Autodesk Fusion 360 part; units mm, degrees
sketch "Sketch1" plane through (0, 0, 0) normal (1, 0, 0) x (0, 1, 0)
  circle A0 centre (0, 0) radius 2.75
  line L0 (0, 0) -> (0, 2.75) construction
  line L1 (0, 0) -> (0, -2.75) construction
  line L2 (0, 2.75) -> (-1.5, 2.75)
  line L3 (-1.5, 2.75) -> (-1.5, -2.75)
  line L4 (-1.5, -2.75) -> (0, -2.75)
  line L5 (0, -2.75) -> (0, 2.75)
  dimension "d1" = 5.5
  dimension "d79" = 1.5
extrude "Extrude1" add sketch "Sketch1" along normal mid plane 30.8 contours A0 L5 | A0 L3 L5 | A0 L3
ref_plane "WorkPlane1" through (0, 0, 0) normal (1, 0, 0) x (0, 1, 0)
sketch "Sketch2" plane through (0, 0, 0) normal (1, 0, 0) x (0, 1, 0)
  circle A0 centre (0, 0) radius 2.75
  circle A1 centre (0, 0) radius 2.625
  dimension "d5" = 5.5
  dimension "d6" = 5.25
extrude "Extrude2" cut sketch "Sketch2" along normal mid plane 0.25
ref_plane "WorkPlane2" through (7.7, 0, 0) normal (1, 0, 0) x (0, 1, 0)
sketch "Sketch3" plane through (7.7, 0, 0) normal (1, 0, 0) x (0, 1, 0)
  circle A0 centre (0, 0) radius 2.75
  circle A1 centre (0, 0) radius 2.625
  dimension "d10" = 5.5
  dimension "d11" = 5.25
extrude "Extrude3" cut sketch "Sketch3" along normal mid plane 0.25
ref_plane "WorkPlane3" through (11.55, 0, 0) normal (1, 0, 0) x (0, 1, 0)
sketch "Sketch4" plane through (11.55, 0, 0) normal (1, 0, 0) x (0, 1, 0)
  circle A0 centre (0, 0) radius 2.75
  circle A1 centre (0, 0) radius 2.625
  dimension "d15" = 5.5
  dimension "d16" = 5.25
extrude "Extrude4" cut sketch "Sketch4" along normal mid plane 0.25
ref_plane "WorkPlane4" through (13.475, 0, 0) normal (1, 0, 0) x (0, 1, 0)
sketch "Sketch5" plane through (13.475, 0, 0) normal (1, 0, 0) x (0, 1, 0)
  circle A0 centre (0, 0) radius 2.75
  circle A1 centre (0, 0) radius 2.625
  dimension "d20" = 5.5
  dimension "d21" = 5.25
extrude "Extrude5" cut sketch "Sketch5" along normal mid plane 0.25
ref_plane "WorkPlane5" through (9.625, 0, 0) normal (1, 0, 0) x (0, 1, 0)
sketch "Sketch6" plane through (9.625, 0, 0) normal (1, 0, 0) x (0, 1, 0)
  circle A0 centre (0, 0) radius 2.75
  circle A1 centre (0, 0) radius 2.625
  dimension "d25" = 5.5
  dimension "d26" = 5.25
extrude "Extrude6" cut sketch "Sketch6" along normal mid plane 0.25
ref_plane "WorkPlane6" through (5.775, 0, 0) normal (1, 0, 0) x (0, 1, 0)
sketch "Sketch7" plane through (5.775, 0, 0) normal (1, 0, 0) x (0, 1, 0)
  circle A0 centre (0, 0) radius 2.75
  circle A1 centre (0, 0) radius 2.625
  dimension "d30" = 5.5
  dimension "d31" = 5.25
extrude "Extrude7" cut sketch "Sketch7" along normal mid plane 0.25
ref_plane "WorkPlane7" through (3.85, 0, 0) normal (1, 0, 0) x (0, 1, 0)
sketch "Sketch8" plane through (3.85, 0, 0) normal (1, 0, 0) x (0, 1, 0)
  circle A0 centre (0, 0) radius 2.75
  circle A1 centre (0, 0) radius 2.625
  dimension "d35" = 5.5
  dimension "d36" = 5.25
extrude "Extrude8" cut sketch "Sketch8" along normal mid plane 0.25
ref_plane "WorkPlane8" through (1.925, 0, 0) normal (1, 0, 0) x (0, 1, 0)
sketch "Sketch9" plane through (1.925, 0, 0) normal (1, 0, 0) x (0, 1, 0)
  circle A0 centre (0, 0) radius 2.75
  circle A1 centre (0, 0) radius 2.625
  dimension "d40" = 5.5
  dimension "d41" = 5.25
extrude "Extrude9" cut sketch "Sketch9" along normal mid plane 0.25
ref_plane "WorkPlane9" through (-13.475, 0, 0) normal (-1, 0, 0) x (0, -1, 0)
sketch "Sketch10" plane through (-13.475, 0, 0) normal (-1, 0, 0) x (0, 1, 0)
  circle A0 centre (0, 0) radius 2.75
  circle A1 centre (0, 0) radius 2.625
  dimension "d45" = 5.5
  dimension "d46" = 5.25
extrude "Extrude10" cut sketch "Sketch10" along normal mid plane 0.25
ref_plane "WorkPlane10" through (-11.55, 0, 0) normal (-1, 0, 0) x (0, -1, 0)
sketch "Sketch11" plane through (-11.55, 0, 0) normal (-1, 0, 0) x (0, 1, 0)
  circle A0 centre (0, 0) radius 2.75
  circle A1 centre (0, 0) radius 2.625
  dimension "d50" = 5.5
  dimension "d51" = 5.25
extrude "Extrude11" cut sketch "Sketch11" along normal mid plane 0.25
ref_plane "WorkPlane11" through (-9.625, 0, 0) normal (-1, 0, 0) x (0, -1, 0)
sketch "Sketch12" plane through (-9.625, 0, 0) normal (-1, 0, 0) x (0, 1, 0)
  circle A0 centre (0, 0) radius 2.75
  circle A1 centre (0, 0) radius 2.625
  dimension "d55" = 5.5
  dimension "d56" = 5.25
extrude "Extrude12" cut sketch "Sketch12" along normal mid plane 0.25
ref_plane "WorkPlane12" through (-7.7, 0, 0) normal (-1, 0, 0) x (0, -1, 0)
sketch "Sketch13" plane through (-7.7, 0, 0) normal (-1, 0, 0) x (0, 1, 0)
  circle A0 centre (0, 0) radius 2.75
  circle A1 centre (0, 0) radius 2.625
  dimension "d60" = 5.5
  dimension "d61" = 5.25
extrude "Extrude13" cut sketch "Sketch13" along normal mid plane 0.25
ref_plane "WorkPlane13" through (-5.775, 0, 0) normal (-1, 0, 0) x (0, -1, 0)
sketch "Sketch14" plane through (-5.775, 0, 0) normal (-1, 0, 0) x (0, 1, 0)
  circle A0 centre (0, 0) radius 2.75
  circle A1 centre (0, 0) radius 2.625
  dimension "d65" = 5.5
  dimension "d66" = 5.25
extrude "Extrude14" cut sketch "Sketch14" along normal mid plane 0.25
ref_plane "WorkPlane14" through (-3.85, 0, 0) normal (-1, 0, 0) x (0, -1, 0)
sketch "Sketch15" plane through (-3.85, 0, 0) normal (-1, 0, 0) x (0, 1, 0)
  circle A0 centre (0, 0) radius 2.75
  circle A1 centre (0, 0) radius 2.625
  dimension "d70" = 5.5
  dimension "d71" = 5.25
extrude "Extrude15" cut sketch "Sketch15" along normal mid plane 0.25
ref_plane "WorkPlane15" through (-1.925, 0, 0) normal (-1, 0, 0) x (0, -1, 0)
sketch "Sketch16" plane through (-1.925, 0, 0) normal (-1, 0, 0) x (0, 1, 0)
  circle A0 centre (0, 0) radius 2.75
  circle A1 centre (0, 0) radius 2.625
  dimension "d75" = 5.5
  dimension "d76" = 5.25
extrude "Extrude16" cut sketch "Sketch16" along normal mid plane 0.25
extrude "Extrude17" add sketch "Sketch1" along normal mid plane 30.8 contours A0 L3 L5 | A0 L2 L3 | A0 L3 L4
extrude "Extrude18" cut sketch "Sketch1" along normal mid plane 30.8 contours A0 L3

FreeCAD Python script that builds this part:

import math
import FreeCAD as App
import Part
import Sketcher
from FreeCAD import Vector
Q = App.Units.Quantity

doc = App.newDocument("Part")
body = doc.addObject("PartDesign::Body", "Body")

# Sketch on YZ plane
sketch1 = body.newObject("Sketcher::SketchObject", "Sketch")
sketch1.AttachmentSupport = (doc.getObject("YZ_Plane"), [""])
sketch1.MapMode = "FlatFace"
sketch1.addGeometry(Part.Circle(Vector(0, 0, 0), Vector(0, 0, 1), 2.8), False)
sketch1.addConstraint(Sketcher.Constraint("Coincident", 0, 3, -1, 1))
sketch1.addConstraint(Sketcher.Constraint("Diameter", 0, Q("5.5 mm")))
pad1 = body.newObject("PartDesign::Pad", "Pad")
pad1.Profile = sketch1
pad1.Length = 30.8
pad1.Midplane = True

# Sketch on YZ plane
sketch2 = body.newObject("Sketcher::SketchObject", "Sketch001")
sketch2.AttachmentSupport = (doc.getObject("YZ_Plane"), [""])
sketch2.MapMode = "FlatFace"
sketch2.addGeometry(Part.Circle(Vector(0, 0, 0), Vector(0, 0, 1), 2.8), False)
sketch2.addGeometry(Part.Circle(Vector(0, 0, 0), Vector(0, 0, 1), 2.6), False)
sketch2.addConstraint(Sketcher.Constraint("Coincident", 0, 3, -1, 1))
sketch2.addConstraint(Sketcher.Constraint("Coincident", 1, 3, -1, 1))
sketch2.addConstraint(Sketcher.Constraint("Diameter", 0, Q("5.5 mm")))
sketch2.addConstraint(Sketcher.Constraint("Diameter", 1, Q("5.25 mm")))
pocket1 = body.newObject("PartDesign::Pocket", "Pocket")
pocket1.Profile = sketch2
pocket1.Length = 0.25
pocket1.Midplane = True

# Sketch on YZ plane
sketch3 = body.newObject("Sketcher::SketchObject", "Sketch002")
sketch3.AttachmentSupport = (doc.getObject("YZ_Plane"), [""])
sketch3.MapMode = "FlatFace"
sketch3.AttachmentOffset = App.Placement(Vector(0, 0, 7.7), App.Rotation())
sketch3.addGeometry(Part.Circle(Vector(0, 0, 0), Vector(0, 0, 1), 2.8), False)
sketch3.addGeometry(Part.Circle(Vector(0, 0, 0), Vector(0, 0, 1), 2.6), False)
sketch3.addConstraint(Sketcher.Constraint("Coincident", 0, 3, -1, 1))
sketch3.addConstraint(Sketcher.Constraint("Coincident", 1, 3, -1, 1))
sketch3.addConstraint(Sketcher.Constraint("Diameter", 0, Q("5.5 mm")))
sketch3.addConstraint(Sketcher.Constraint("Diameter", 1, Q("5.25 mm")))
pocket2 = body.newObject("PartDesign::Pocket", "Pocket001")
pocket2.Profile = sketch3
pocket2.Length = 0.25
pocket2.Midplane = True

# Sketch on YZ plane
sketch4 = body.newObject("Sketcher::SketchObject", "Sketch003")
sketch4.AttachmentSupport = (doc.getObject("YZ_Plane"), [""])
sketch4.MapMode = "FlatFace"
sketch4.AttachmentOffset = App.Placement(Vector(0, 0, 11.55), App.Rotation())
sketch4.addGeometry(Part.Circle(Vector(0, 0, 0), Vector(0, 0, 1), 2.8), False)
sketch4.addGeometry(Part.Circle(Vector(0, 0, 0), Vector(0, 0, 1), 2.6), False)
sketch4.addConstraint(Sketcher.Constraint("Coincident", 0, 3, -1, 1))
sketch4.addConstraint(Sketcher.Constraint("Coincident", 1, 3, -1, 1))
sketch4.addConstraint(Sketcher.Constraint("Diameter", 0, Q("5.5 mm")))
sketch4.addConstraint(Sketcher.Constraint("Diameter", 1, Q("5.25 mm")))
pocket3 = body.newObject("PartDesign::Pocket", "Pocket002")
pocket3.Profile = sketch4
pocket3.Length = 0.25
pocket3.Midplane = True

# Sketch on YZ plane
sketch5 = body.newObject("Sketcher::SketchObject", "Sketch004")
sketch5.AttachmentSupport = (doc.getObject("YZ_Plane"), [""])
sketch5.MapMode = "FlatFace"
sketch5.AttachmentOffset = App.Placement(Vector(0, 0, 13.475), App.Rotation())
sketch5.addGeometry(Part.Circle(Vector(0, 0, 0), Vector(0, 0, 1), 2.8), False)
sketch5.addGeometry(Part.Circle(Vector(0, 0, 0), Vector(0, 0, 1), 2.6), False)
sketch5.addConstraint(Sketcher.Constraint("Coincident", 0, 3, -1, 1))
sketch5.addConstraint(Sketcher.Constraint("Coincident", 1, 3, -1, 1))
sketch5.addConstraint(Sketcher.Constraint("Diameter", 0, Q("5.5 mm")))
sketch5.addConstraint(Sketcher.Constraint("Diameter", 1, Q("5.25 mm")))
pocket4 = body.newObject("PartDesign::Pocket", "Pocket003")
pocket4.Profile = sketch5
pocket4.Length = 0.25
pocket4.Midplane = True

# Sketch on YZ plane
sketch6 = body.newObject("Sketcher::SketchObject", "Sketch005")
sketch6.AttachmentSupport = (doc.getObject("YZ_Plane"), [""])
sketch6.MapMode = "FlatFace"
sketch6.AttachmentOffset = App.Placement(Vector(0, 0, 9.625), App.Rotation())
sketch6.addGeometry(Part.Circle(Vector(0, 0, 0), Vector(0, 0, 1), 2.8), False)
sketch6.addGeometry(Part.Circle(Vector(0, 0, 0), Vector(0, 0, 1), 2.6), False)
sketch6.addConstraint(Sketcher.Constraint("Coincident", 0, 3, -1, 1))
sketch6.addConstraint(Sketcher.Constraint("Coincident", 1, 3, -1, 1))
sketch6.addConstraint(Sketcher.Constraint("Diameter", 0, Q("5.5 mm")))
sketch6.addConstraint(Sketcher.Constraint("Diameter", 1, Q("5.25 mm")))
pocket5 = body.newObject("PartDesign::Pocket", "Pocket004")
pocket5.Profile = sketch6
pocket5.Length = 0.25
pocket5.Midplane = True

# Sketch on YZ plane
sketch7 = body.newObject("Sketcher::SketchObject", "Sketch006")
sketch7.AttachmentSupport = (doc.getObject("YZ_Plane"), [""])
sketch7.MapMode = "FlatFace"
sketch7.AttachmentOffset = App.Placement(Vector(0, 0, 5.775), App.Rotation())
sketch7.addGeometry(Part.Circle(Vector(0, 0, 0), Vector(0, 0, 1), 2.8), False)
sketch7.addGeometry(Part.Circle(Vector(0, 0, 0), Vector(0, 0, 1), 2.6), False)
sketch7.addConstraint(Sketcher.Constraint("Coincident", 0, 3, -1, 1))
sketch7.addConstraint(Sketcher.Constraint("Coincident", 1, 3, -1, 1))
sketch7.addConstraint(Sketcher.Constraint("Diameter", 0, Q("5.5 mm")))
sketch7.addConstraint(Sketcher.Constraint("Diameter", 1, Q("5.25 mm")))
pocket6 = body.newObject("PartDesign::Pocket", "Pocket005")
pocket6.Profile = sketch7
pocket6.Length = 0.25
pocket6.Midplane = True

# Sketch on YZ plane
sketch8 = body.newObject("Sketcher::SketchObject", "Sketch007")
sketch8.AttachmentSupport = (doc.getObject("YZ_Plane"), [""])
sketch8.MapMode = "FlatFace"
sketch8.AttachmentOffset = App.Placement(Vector(0, 0, 3.85), App.Rotation())
sketch8.addGeometry(Part.Circle(Vector(0, 0, 0), Vector(0, 0, 1), 2.8), False)
sketch8.addGeometry(Part.Circle(Vector(0, 0, 0), Vector(0, 0, 1), 2.6), False)
sketch8.addConstraint(Sketcher.Constraint("Coincident", 0, 3, -1, 1))
sketch8.addConstraint(Sketcher.Constraint("Coincident", 1, 3, -1, 1))
sketch8.addConstraint(Sketcher.Constraint("Diameter", 0, Q("5.5 mm")))
sketch8.addConstraint(Sketcher.Constraint("Diameter", 1, Q("5.25 mm")))
pocket7 = body.newObject("PartDesign::Pocket", "Pocket006")
pocket7.Profile = sketch8
pocket7.Length = 0.25
pocket7.Midplane = True

# Sketch on YZ plane
sketch9 = body.newObject("Sketcher::SketchObject", "Sketch008")
sketch9.AttachmentSupport = (doc.getObject("YZ_Plane"), [""])
sketch9.MapMode = "FlatFace"
sketch9.AttachmentOffset = App.Placement(Vector(0, 0, 1.925), App.Rotation())
sketch9.addGeometry(Part.Circle(Vector(0, 0, 0), Vector(0, 0, 1), 2.8), False)
sketch9.addGeometry(Part.Circle(Vector(0, 0, 0), Vector(0, 0, 1), 2.6), False)
sketch9.addConstraint(Sketcher.Constraint("Coincident", 0, 3, -1, 1))
sketch9.addConstraint(Sketcher.Constraint("Coincident", 1, 3, -1, 1))
sketch9.addConstraint(Sketcher.Constraint("Diameter", 0, Q("5.5 mm")))
sketch9.addConstraint(Sketcher.Constraint("Diameter", 1, Q("5.25 mm")))
pocket8 = body.newObject("PartDesign::Pocket", "Pocket007")
pocket8.Profile = sketch9
pocket8.Length = 0.25
pocket8.Midplane = True

# Sketch on YZ plane
sketch10 = body.newObject("Sketcher::SketchObject", "Sketch009")
sketch10.AttachmentSupport = (doc.getObject("YZ_Plane"), [""])
sketch10.MapMode = "FlatFace"
sketch10.AttachmentOffset = App.Placement(Vector(0, 0, -13.475), App.Rotation())
sketch10.addGeometry(Part.Circle(Vector(0, 0, 0), Vector(0, 0, 1), 2.8), False)
sketch10.addGeometry(Part.Circle(Vector(0, 0, 0), Vector(0, 0, 1), 2.6), False)
sketch10.addConstraint(Sketcher.Constraint("Coincident", 0, 3, -1, 1))
sketch10.addConstraint(Sketcher.Constraint("Coincident", 1, 3, -1, 1))
sketch10.addConstraint(Sketcher.Constraint("Diameter", 0, Q("5.5 mm")))
sketch10.addConstraint(Sketcher.Constraint("Diameter", 1, Q("5.25 mm")))
pocket9 = body.newObject("PartDesign::Pocket", "Pocket008")
pocket9.Profile = sketch10
pocket9.Length = 0.25
pocket9.Midplane = True

# Sketch on YZ plane
sketch11 = body.newObject("Sketcher::SketchObject", "Sketch010")
sketch11.AttachmentSupport = (doc.getObject("YZ_Plane"), [""])
sketch11.MapMode = "FlatFace"
sketch11.AttachmentOffset = App.Placement(Vector(0, 0, -11.55), App.Rotation())
sketch11.addGeometry(Part.Circle(Vector(0, 0, 0), Vector(0, 0, 1), 2.8), False)
sketch11.addGeometry(Part.Circle(Vector(0, 0, 0), Vector(0, 0, 1), 2.6), False)
sketch11.addConstraint(Sketcher.Constraint("Coincident", 0, 3, -1, 1))
sketch11.addConstraint(Sketcher.Constraint("Coincident", 1, 3, -1, 1))
sketch11.addConstraint(Sketcher.Constraint("Diameter", 0, Q("5.5 mm")))
sketch11.addConstraint(Sketcher.Constraint("Diameter", 1, Q("5.25 mm")))
pocket10 = body.newObject("PartDesign::Pocket", "Pocket009")
pocket10.Profile = sketch11
pocket10.Length = 0.25
pocket10.Midplane = True

# Sketch on YZ plane
sketch12 = body.newObject("Sketcher::SketchObject", "Sketch011")
sketch12.AttachmentSupport = (doc.getObject("YZ_Plane"), [""])
sketch12.MapMode = "FlatFace"
sketch12.AttachmentOffset = App.Placement(Vector(0, 0, -9.625), App.Rotation())
sketch12.addGeometry(Part.Circle(Vector(0, 0, 0), Vector(0, 0, 1), 2.8), False)
sketch12.addGeometry(Part.Circle(Vector(0, 0, 0), Vector(0, 0, 1), 2.6), False)
sketch12.addConstraint(Sketcher.Constraint("Coincident", 0, 3, -1, 1))
sketch12.addConstraint(Sketcher.Constraint("Coincident", 1, 3, -1, 1))
sketch12.addConstraint(Sketcher.Constraint("Diameter", 0, Q("5.5 mm")))
sketch12.addConstraint(Sketcher.Constraint("Diameter", 1, Q("5.25 mm")))
pocket11 = body.newObject("PartDesign::Pocket", "Pocket010")
pocket11.Profile = sketch12
pocket11.Length = 0.25
pocket11.Midplane = True

# Sketch on YZ plane
sketch13 = body.newObject("Sketcher::SketchObject", "Sketch012")
sketch13.AttachmentSupport = (doc.getObject("YZ_Plane"), [""])
sketch13.MapMode = "FlatFace"
sketch13.AttachmentOffset = App.Placement(Vector(0, 0, -7.7), App.Rotation())
sketch13.addGeometry(Part.Circle(Vector(0, 0, 0), Vector(0, 0, 1), 2.8), False)
sketch13.addGeometry(Part.Circle(Vector(0, 0, 0), Vector(0, 0, 1), 2.6), False)
sketch13.addConstraint(Sketcher.Constraint("Coincident", 0, 3, -1, 1))
sketch13.addConstraint(Sketcher.Constraint("Coincident", 1, 3, -1, 1))
sketch13.addConstraint(Sketcher.Constraint("Diameter", 0, Q("5.5 mm")))
sketch13.addConstraint(Sketcher.Constraint("Diameter", 1, Q("5.25 mm")))
pocket12 = body.newObject("PartDesign::Pocket", "Pocket011")
pocket12.Profile = sketch13
pocket12.Length = 0.25
pocket12.Midplane = True

# Sketch on YZ plane
sketch14 = body.newObject("Sketcher::SketchObject", "Sketch013")
sketch14.AttachmentSupport = (doc.getObject("YZ_Plane"), [""])
sketch14.MapMode = "FlatFace"
sketch14.AttachmentOffset = App.Placement(Vector(0, 0, -5.775), App.Rotation())
sketch14.addGeometry(Part.Circle(Vector(0, 0, 0), Vector(0, 0, 1), 2.8), False)
sketch14.addGeometry(Part.Circle(Vector(0, 0, 0), Vector(0, 0, 1), 2.6), False)
sketch14.addConstraint(Sketcher.Constraint("Coincident", 0, 3, -1, 1))
sketch14.addConstraint(Sketcher.Constraint("Coincident", 1, 3, -1, 1))
sketch14.addConstraint(Sketcher.Constraint("Diameter", 0, Q("5.5 mm")))
sketch14.addConstraint(Sketcher.Constraint("Diameter", 1, Q("5.25 mm")))
pocket13 = body.newObject("PartDesign::Pocket", "Pocket012")
pocket13.Profile = sketch14
pocket13.Length = 0.25
pocket13.Midplane = True

# Sketch on YZ plane
sketch15 = body.newObject("Sketcher::SketchObject", "Sketch014")
sketch15.AttachmentSupport = (doc.getObject("YZ_Plane"), [""])
sketch15.MapMode = "FlatFace"
sketch15.AttachmentOffset = App.Placement(Vector(0, 0, -3.85), App.Rotation())
sketch15.addGeometry(Part.Circle(Vector(0, 0, 0), Vector(0, 0, 1), 2.8), False)
sketch15.addGeometry(Part.Circle(Vector(0, 0, 0), Vector(0, 0, 1), 2.6), False)
sketch15.addConstraint(Sketcher.Constraint("Coincident", 0, 3, -1, 1))
sketch15.addConstraint(Sketcher.Constraint("Coincident", 1, 3, -1, 1))
sketch15.addConstraint(Sketcher.Constraint("Diameter", 0, Q("5.5 mm")))
sketch15.addConstraint(Sketcher.Constraint("Diameter", 1, Q("5.25 mm")))
pocket14 = body.newObject("PartDesign::Pocket", "Pocket013")
pocket14.Profile = sketch15
pocket14.Length = 0.25
pocket14.Midplane = True

# Sketch on YZ plane
sketch16 = body.newObject("Sketcher::SketchObject", "Sketch015")
sketch16.AttachmentSupport = (doc.getObject("YZ_Plane"), [""])
sketch16.MapMode = "FlatFace"
sketch16.AttachmentOffset = App.Placement(Vector(0, 0, -1.925), App.Rotation())
sketch16.addGeometry(Part.Circle(Vector(0, 0, 0), Vector(0, 0, 1), 2.8), False)
sketch16.addGeometry(Part.Circle(Vector(0, 0, 0), Vector(0, 0, 1), 2.6), False)
sketch16.addConstraint(Sketcher.Constraint("Coincident", 0, 3, -1, 1))
sketch16.addConstraint(Sketcher.Constraint("Coincident", 1, 3, -1, 1))
sketch16.addConstraint(Sketcher.Constraint("Diameter", 0, Q("5.5 mm")))
sketch16.addConstraint(Sketcher.Constraint("Diameter", 1, Q("5.25 mm")))
pocket15 = body.newObject("PartDesign::Pocket", "Pocket014")
pocket15.Profile = sketch16
pocket15.Length = 0.25
pocket15.Midplane = True

# Sketch on YZ plane
sketch17 = body.newObject("Sketcher::SketchObject", "Sketch016")
sketch17.AttachmentSupport = (doc.getObject("YZ_Plane"), [""])
sketch17.MapMode = "FlatFace"
sketch17.addGeometry(Part.LineSegment(Vector(0, -2.8, 0), Vector(0, 2.8, 0)), False)
sketch17.addGeometry(Part.LineSegment(Vector(0, 2.8, 0), Vector(-1.5, 2.8, 0)), False)
sketch17.addGeometry(Part.LineSegment(Vector(-1.5, 2.8, 0), Vector(-1.5, -2.8, 0)), False)
sketch17.addGeometry(Part.LineSegment(Vector(-1.5, -2.8, 0), Vector(0, -2.8, 0)), False)
sketch17.addConstraint(Sketcher.Constraint("Coincident", 0, 2, 1, 1))
sketch17.addConstraint(Sketcher.Constraint("Coincident", 1, 2, 2, 1))
sketch17.addConstraint(Sketcher.Constraint("Coincident", 2, 2, 3, 1))
sketch17.addConstraint(Sketcher.Constraint("Coincident", 3, 2, 0, 1))
sketch17.addConstraint(Sketcher.Constraint("Vertical", 0))
sketch17.addConstraint(Sketcher.Constraint("Horizontal", 1))
sketch17.addConstraint(Sketcher.Constraint("Vertical", 2))
sketch17.addConstraint(Sketcher.Constraint("Horizontal", 3))
sketch17.addConstraint(Sketcher.Constraint("Symmetric", 0, 2, 3, 2, -1, 1))
sketch17.addConstraint(Sketcher.Constraint("DistanceX", 1, 2, 1, 1, Q("1.5 mm")))
sketch17.addConstraint(Sketcher.Constraint("DistanceY", 0, 1, 0, 2, Q("5.5 mm")))
pad2 = body.newObject("PartDesign::Pad", "Pad001")
pad2.Profile = sketch17
pad2.Length = 30.8
pad2.Midplane = True

# Sketch on YZ plane
sketch18 = body.newObject("Sketcher::SketchObject", "Sketch017")
sketch18.AttachmentSupport = (doc.getObject("YZ_Plane"), [""])
sketch18.MapMode = "FlatFace"
sketch18.addGeometry(Part.LineSegment(Vector(-1.5, -2.3, 0), Vector(-1.5, 2.3, 0)), False)
sketch18.addGeometry(Part.ArcOfCircle(Part.Circle(Vector(0, 0, 0), Vector(0, 0, 1), 2.8), math.radians(123), math.radians(237)), False)
sketch18.addConstraint(Sketcher.Constraint("Coincident", 0, 1, 1, 2))
sketch18.addConstraint(Sketcher.Constraint("Coincident", 1, 1, 0, 2))
sketch18.addConstraint(Sketcher.Constraint("Vertical", 0))
sketch18.addConstraint(Sketcher.Constraint("Coincident", 1, 3, -1, 1))
sketch18.addConstraint(Sketcher.Constraint("Radius", 1, Q("2.75 mm")))
sketch18.addConstraint(Sketcher.Constraint("DistanceX", 0, 1, -1, 1, Q("1.5 mm")))
pocket16 = body.newObject("PartDesign::Pocket", "Pocket015")
pocket16.Profile = sketch18
pocket16.Length = 30.8
pocket16.Midplane = True

doc.recompute()
